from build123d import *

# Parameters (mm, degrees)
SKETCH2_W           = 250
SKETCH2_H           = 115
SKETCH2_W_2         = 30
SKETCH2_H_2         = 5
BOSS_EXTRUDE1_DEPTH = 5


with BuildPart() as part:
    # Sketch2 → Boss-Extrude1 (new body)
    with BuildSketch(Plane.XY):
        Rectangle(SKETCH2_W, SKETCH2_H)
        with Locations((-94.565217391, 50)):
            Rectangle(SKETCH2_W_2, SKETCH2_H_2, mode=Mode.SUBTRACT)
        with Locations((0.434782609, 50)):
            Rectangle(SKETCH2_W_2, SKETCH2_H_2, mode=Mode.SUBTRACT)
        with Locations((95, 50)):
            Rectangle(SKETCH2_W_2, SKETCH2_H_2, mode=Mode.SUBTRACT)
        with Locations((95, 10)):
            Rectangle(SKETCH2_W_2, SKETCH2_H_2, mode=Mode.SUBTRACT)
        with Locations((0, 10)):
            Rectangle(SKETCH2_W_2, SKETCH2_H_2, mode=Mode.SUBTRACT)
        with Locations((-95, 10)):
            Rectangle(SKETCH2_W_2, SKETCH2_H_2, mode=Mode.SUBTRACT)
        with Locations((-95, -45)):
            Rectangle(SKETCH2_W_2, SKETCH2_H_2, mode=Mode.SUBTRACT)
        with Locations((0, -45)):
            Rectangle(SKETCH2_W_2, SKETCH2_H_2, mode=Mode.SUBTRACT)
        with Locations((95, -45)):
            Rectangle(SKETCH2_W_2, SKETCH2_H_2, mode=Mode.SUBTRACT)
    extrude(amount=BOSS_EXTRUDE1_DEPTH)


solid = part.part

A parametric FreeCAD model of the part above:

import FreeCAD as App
import Part
import Sketcher

V = App.Vector

doc = App.newDocument("Part")
body = doc.addObject("PartDesign::Body", "Body")

sketch1 = body.newObject("Sketcher::SketchObject", "Sketch")
sketch1.AttachmentSupport = (doc.getObject("XY_Plane"), [""])
sketch1.MapMode = "FlatFace"
sketch1.addGeometry([
    Part.LineSegment(V(-125, 58, 0), V(-125, -58, 0)),
    Part.LineSegment(V(-125, -58, 0), V(125, -58, 0)),
    Part.LineSegment(V(125, -58, 0), V(125, 58, 0)),
    Part.LineSegment(V(125, 58, 0), V(-125, 58, 0)),
    Part.LineSegment(V(-80, -48, 0), V(-110, -48, 0)),
    Part.LineSegment(V(-110, -48, 0), V(-110, -42, 0)),
    Part.LineSegment(V(-110, -42, 0), V(-80, -42, 0)),
    Part.LineSegment(V(-80, -42, 0), V(-80, -48, 0)),
    Part.LineSegment(V(15, -48, 0), V(-15, -48, 0)),
    Part.LineSegment(V(-15, -48, 0), V(-15, -42, 0)),
    Part.LineSegment(V(-15, -42, 0), V(15, -42, 0)),
    Part.LineSegment(V(15, -42, 0), V(15, -48, 0)),
    Part.LineSegment(V(110, -48, 0), V(80, -48, 0)),
    Part.LineSegment(V(80, -48, 0), V(80, -42, 0)),
    Part.LineSegment(V(80, -42, 0), V(110, -42, 0)),
    Part.LineSegment(V(110, -42, 0), V(110, -48, 0)),
    Part.LineSegment(V(-80, 8, 0), V(-110, 8, 0)),
    Part.LineSegment(V(-110, 8, 0), V(-110, 12, 0)),
    Part.LineSegment(V(-110, 12, 0), V(-80, 12, 0)),
    Part.LineSegment(V(-80, 12, 0), V(-80, 8, 0)),
    Part.LineSegment(V(-80, 48, 0), V(-110, 48, 0)),
    Part.LineSegment(V(-110, 48, 0), V(-110, 52, 0)),
    Part.LineSegment(V(-110, 52, 0), V(-80, 52, 0)),
    Part.LineSegment(V(-80, 52, 0), V(-80, 48, 0)),
    Part.LineSegment(V(15, 8, 0), V(-15, 8, 0)),
    Part.LineSegment(V(-15, 8, 0), V(-15, 12, 0)),
    Part.LineSegment(V(-15, 12, 0), V(15, 12, 0)),
    Part.LineSegment(V(15, 12, 0), V(15, 8, 0)),
    Part.LineSegment(V(110, 8, 0), V(80, 8, 0)),
    Part.LineSegment(V(80, 8, 0), V(80, 12, 0)),
    Part.LineSegment(V(80, 12, 0), V(110, 12, 0)),
    Part.LineSegment(V(110, 12, 0), V(110, 8, 0)),
    Part.LineSegment(V(15, 48, 0), V(-15, 48, 0)),
    Part.LineSegment(V(-15, 48, 0), V(-15, 52, 0)),
    Part.LineSegment(V(-15, 52, 0), V(15, 52, 0)),
    Part.LineSegment(V(15, 52, 0), V(15, 48, 0)),
    Part.LineSegment(V(110, 48, 0), V(80, 48, 0)),
    Part.LineSegment(V(80, 48, 0), V(80, 52, 0)),
    Part.LineSegment(V(80, 52, 0), V(110, 52, 0)),
    Part.LineSegment(V(110, 52, 0), V(110, 48, 0)),
], False)
sketch1.addConstraint([
    Sketcher.Constraint("Coincident", 0, 2, 1, 1),
    Sketcher.Constraint("Coincident", 1, 2, 2, 1),
    Sketcher.Constraint("Coincident", 2, 2, 3, 1),
    Sketcher.Constraint("Coincident", 3, 2, 0, 1),
    Sketcher.Constraint("Coincident", 4, 2, 5, 1),
    Sketcher.Constraint("Coincident", 5, 2, 6, 1),
    Sketcher.Constraint("Coincident", 6, 2, 7, 1),
    Sketcher.Constraint("Coincident", 7, 2, 4, 1),
    Sketcher.Constraint("Coincident", 8, 2, 9, 1),
    Sketcher.Constraint("Coincident", 9, 2, 10, 1),
    Sketcher.Constraint("Coincident", 10, 2, 11, 1),
    Sketcher.Constraint("Coincident", 11, 2, 8, 1),
    Sketcher.Constraint("Coincident", 12, 2, 13, 1),
    Sketcher.Constraint("Coincident", 13, 2, 14, 1),
    Sketcher.Constraint("Coincident", 14, 2, 15, 1),
    Sketcher.Constraint("Coincident", 15, 2, 12, 1),
    Sketcher.Constraint("Coincident", 16, 2, 17, 1),
    Sketcher.Constraint("Coincident", 17, 2, 18, 1),
    Sketcher.Constraint("Coincident", 18, 2, 19, 1),
    Sketcher.Constraint("Coincident", 19, 2, 16, 1),
    Sketcher.Constraint("Coincident", 20, 2, 21, 1),
    Sketcher.Constraint("Coincident", 21, 2, 22, 1),
    Sketcher.Constraint("Coincident", 22, 2, 23, 1),
    Sketcher.Constraint("Coincident", 23, 2, 20, 1),
    Sketcher.Constraint("Coincident", 24, 2, 25, 1),
    Sketcher.Constraint("Coincident", 25, 2, 26, 1),
    Sketcher.Constraint("Coincident", 26, 2, 27, 1),
    Sketcher.Constraint("Coincident", 27, 2, 24, 1),
    Sketcher.Constraint("Coincident", 28, 2, 29, 1),
    Sketcher.Constraint("Coincident", 29, 2, 30, 1),
    Sketcher.Constraint("Coincident", 30, 2, 31, 1),
    Sketcher.Constraint("Coincident", 31, 2, 28, 1),
    Sketcher.Constraint("Coincident", 32, 2, 33, 1),
    Sketcher.Constraint("Coincident", 33, 2, 34, 1),
    Sketcher.Constraint("Coincident", 34, 2, 35, 1),
    Sketcher.Constraint("Coincident", 35, 2, 32, 1),
    Sketcher.Constraint("Coincident", 36, 2, 37, 1),
    Sketcher.Constraint("Coincident", 37, 2, 38, 1),
    Sketcher.Constraint("Coincident", 38, 2, 39, 1),
    Sketcher.Constraint("Coincident", 39, 2, 36, 1),
    Sketcher.Constraint("Vertical", 0),
    Sketcher.Constraint("Horizontal", 1),
    Sketcher.Constraint("Vertical", 2),
    Sketcher.Constraint("Horizontal", 3),
    Sketcher.Constraint("Horizontal", 4),
    Sketcher.Constraint("Vertical", 5),
    Sketcher.Constraint("Horizontal", 6),
    Sketcher.Constraint("Vertical", 7),
    Sketcher.Constraint("Horizontal", 8),
    Sketcher.Constraint("Vertical", 9),
    Sketcher.Constraint("Horizontal", 10),
    Sketcher.Constraint("Vertical", 11),
    Sketcher.Constraint("Horizontal", 12),
    Sketcher.Constraint("Vertical", 13),
    Sketcher.Constraint("Horizontal", 14),
    Sketcher.Constraint("Vertical", 15),
    Sketcher.Constraint("Horizontal", 16),
    Sketcher.Constraint("Vertical", 17),
    Sketcher.Constraint("Horizontal", 18),
    Sketcher.Constraint("Vertical", 19),
    Sketcher.Constraint("Horizontal", 20),
    Sketcher.Constraint("Vertical", 21),
    Sketcher.Constraint("Horizontal", 22),
    Sketcher.Constraint("Vertical", 23),
    Sketcher.Constraint("Horizontal", 24),
    Sketcher.Constraint("Vertical", 25),
    Sketcher.Constraint("Horizontal", 26),
    Sketcher.Constraint("Vertical", 27),
    Sketcher.Constraint("Horizontal", 28),
    Sketcher.Constraint("Vertical", 29),
    Sketcher.Constraint("Horizontal", 30),
    Sketcher.Constraint("Vertical", 31),
    Sketcher.Constraint("Horizontal", 32),
    Sketcher.Constraint("Vertical", 33),
    Sketcher.Constraint("Horizontal", 34),
    Sketcher.Constraint("Vertical", 35),
    Sketcher.Constraint("Horizontal", 36),
    Sketcher.Constraint("Vertical", 37),
    Sketcher.Constraint("Horizontal", 38),
    Sketcher.Constraint("Vertical", 39),
    Sketcher.Constraint("Symmetric", 0, 2, 2, 2, -1, 1),
    Sketcher.Constraint("Symmetric", 7, 2, 36, 2, -1, 1),
    Sketcher.Constraint("Symmetric", 7, 2, 12, 2, -2),
    Sketcher.Constraint("Symmetric", 5, 2, 14, 2, -2),
    Sketcher.Constraint("Symmetric", 19, 2, 28, 2, -2),
    Sketcher.Constraint("Symmetric", 17, 2, 30, 2, -2),
    Sketcher.Constraint("Horizontal", 7, 2, 8, 2),
    Sketcher.Constraint("Horizontal", 6, 2, 9, 2),
    Sketcher.Constraint("Horizontal", 19, 2, 24, 2),
    Sketcher.Constraint("Horizontal", 18, 2, 25, 2),
    Sketcher.Constraint("Horizontal", 23, 2, 32, 2),
    Sketcher.Constraint("Horizontal", 22, 2, 33, 2),
    Sketcher.Constraint("Horizontal", 35, 2, 36, 2),
    Sketcher.Constraint("Horizontal", 34, 2, 37, 2),
    Sketcher.Constraint("Vertical", 5, 2, 16, 2),
    Sketcher.Constraint("Vertical", 7, 2, 18, 2),
    Sketcher.Constraint("Vertical", 9, 2, 24, 2),
    Sketcher.Constraint("Vertical", 11, 2, 26, 2),
    Sketcher.Constraint("Vertical", 31, 2, 38, 2),
    Sketcher.Constraint("Equal", 6, 8),
    Sketcher.Constraint("Equal", 18, 20),
    Sketcher.Constraint("Equal", 30, 32),
    Sketcher.Constraint("Equal", 15, 17),
    Sketcher.Constraint("Equal", 19, 21),
    Sketcher.Constraint("DistanceX", 1, 1, 1, 2, 250.0),
    Sketcher.Constraint("DistanceX", 4, 2, 4, 1, 30.0),
    Sketcher.Constraint("DistanceY", 0, 2, 0, 1, 115.0),
    Sketcher.Constraint("DistanceY", 5, 1, 5, 2, 5.0),
    Sketcher.Constraint("DistanceX", 4, 2, -1, 1, 110.0),
    Sketcher.Constraint("DistanceX", 8, 2, -1, 1, 15.0),
    Sketcher.Constraint("DistanceY", 0, 2, 4, 2, 10.0),
    Sketcher.Constraint("DistanceY", 5, 2, 16, 2, 50.0),
    Sketcher.Constraint("DistanceX", 23, 2, 32, 2, 65.0),
    Sketcher.Constraint("DistanceX", 20, 2, -1, 1, 109.565217),
])
pad1 = body.newObject("PartDesign::Pad", "Pad")
pad1.Profile = sketch1
pad1.Length = 5

doc.recompute()
